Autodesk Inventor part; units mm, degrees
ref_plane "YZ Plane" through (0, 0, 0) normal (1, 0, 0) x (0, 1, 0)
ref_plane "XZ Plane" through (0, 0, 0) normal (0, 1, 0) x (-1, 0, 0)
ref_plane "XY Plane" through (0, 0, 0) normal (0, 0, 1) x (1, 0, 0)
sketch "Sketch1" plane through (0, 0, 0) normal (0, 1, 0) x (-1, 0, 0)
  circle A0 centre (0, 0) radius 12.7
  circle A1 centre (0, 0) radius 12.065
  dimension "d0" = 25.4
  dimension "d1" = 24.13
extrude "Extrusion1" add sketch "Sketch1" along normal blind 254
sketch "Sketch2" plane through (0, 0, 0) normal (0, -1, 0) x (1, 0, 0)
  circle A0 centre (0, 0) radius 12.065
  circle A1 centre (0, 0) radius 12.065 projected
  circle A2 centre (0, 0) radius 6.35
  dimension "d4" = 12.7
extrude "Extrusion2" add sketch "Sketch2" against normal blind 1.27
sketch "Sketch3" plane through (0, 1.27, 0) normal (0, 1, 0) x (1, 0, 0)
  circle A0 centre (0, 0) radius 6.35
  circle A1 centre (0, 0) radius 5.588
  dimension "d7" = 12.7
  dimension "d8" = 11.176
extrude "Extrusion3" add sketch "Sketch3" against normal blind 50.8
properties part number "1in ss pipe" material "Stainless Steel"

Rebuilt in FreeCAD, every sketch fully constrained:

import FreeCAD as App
import Part
import Sketcher
from FreeCAD import Vector
Q = App.Units.Quantity

doc = App.newDocument("Part")
body = doc.addObject("PartDesign::Body", "Body")

sketch1 = body.newObject("Sketcher::SketchObject", "Sketch")
sketch1.AttachmentSupport = (doc.getObject("XZ_Plane"), [""])
sketch1.MapMode = "FlatFace"
sketch1.addGeometry(Part.Circle(Vector(0, 0, 0), Vector(0, 0, 1), 13), False)
sketch1.addGeometry(Part.Circle(Vector(0, 0, 0), Vector(0, 0, 1), 12), False)
sketch1.addConstraint(Sketcher.Constraint("Coincident", 0, 3, -1, 1))
sketch1.addConstraint(Sketcher.Constraint("Coincident", 1, 3, -1, 1))
sketch1.addConstraint(Sketcher.Constraint("Diameter", 0, Q("1 in")))
sketch1.addConstraint(Sketcher.Constraint("Diameter", 1, Q("0.95 in")))
pad1 = body.newObject("PartDesign::Pad", "Pad")
pad1.Profile = sketch1
pad1.Length = Q("10 in")
pad1.Reversed = True

sketch2 = body.newObject("Sketcher::SketchObject", "Sketch001")
sketch2.AttachmentSupport = (doc.getObject("XZ_Plane"), [""])
sketch2.MapMode = "FlatFace"
sketch2.addGeometry(Part.Circle(Vector(0, 0, 0), Vector(0, 0, 1), 12), False)
sketch2.addGeometry(Part.Circle(Vector(0, 0, 0), Vector(0, 0, 1), 6), False)
sketch2.addConstraint(Sketcher.Constraint("Coincident", 0, 3, -1, 1))
sketch2.addConstraint(Sketcher.Constraint("Coincident", 1, 3, -1, 1))
sketch2.addConstraint(Sketcher.Constraint("Diameter", 1, Q("0.5 in")))
sketch2.addConstraint(Sketcher.Constraint("Diameter", 0, Q("0.95 in")))
pad2 = body.newObject("PartDesign::Pad", "Pad001")
pad2.Profile = sketch2
pad2.Length = Q("0.05 in")
pad2.Reversed = True

sketch3 = body.newObject("Sketcher::SketchObject", "Sketch002")
sketch3.AttachmentSupport = (doc.getObject("XZ_Plane"), [""])
sketch3.MapMode = "FlatFace"
sketch3.AttachmentOffset = App.Placement(Vector(0, 0, -0.05 * 25.4), App.Rotation())
sketch3.addGeometry(Part.Circle(Vector(0, 0, 0), Vector(0, 0, 1), 6), False)
sketch3.addGeometry(Part.Circle(Vector(0, 0, 0), Vector(0, 0, 1), 6), False)
sketch3.addConstraint(Sketcher.Constraint("Coincident", 0, 3, -1, 1))
sketch3.addConstraint(Sketcher.Constraint("Coincident", 1, 3, -1, 1))
sketch3.addConstraint(Sketcher.Constraint("Diameter", 0, Q("0.5 in")))
sketch3.addConstraint(Sketcher.Constraint("Diameter", 1, Q("0.44 in")))
pad3 = body.newObject("PartDesign::Pad", "Pad002")
pad3.Profile = sketch3
pad3.Length = Q("2 in")

doc.recompute()
